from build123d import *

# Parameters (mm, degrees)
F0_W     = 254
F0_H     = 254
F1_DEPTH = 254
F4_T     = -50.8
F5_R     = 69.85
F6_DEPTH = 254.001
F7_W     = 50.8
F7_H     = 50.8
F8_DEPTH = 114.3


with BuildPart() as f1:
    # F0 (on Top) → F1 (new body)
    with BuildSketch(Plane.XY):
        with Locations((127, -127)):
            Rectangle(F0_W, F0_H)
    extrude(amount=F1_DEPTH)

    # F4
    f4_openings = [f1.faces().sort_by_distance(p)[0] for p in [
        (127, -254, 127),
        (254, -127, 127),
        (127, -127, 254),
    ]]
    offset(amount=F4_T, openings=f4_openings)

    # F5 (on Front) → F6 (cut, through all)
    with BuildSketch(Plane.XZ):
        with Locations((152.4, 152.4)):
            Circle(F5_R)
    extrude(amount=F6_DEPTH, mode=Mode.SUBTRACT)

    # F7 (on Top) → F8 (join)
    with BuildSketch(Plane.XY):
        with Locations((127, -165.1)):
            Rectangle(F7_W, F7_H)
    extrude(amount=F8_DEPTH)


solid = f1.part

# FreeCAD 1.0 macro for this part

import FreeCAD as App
import Part
import Sketcher
from FreeCAD import Vector
Q = App.Units.Quantity


def faces_at(feature, points):
    """Names of the faces that lie closest to the given points."""
    faces = feature.Shape.Faces
    near = lambda p: min(range(len(faces)), key=lambda i: faces[i].distToShape(Part.Vertex(*p))[0])
    return sorted({f"Face{near(p) + 1}" for p in points})

doc = App.newDocument("Part")
body = doc.addObject("PartDesign::Body", "Body")

# Sketch on XY plane
sketch1 = body.newObject("Sketcher::SketchObject", "Sketch")
sketch1.AttachmentSupport = (doc.getObject("XY_Plane"), [""])
sketch1.MapMode = "FlatFace"
sketch1.addGeometry([
    Part.LineSegment(Vector(0, 0, 0), Vector(0, -254, 0)),
    Part.LineSegment(Vector(0, -254, 0), Vector(254, -254, 0)),
    Part.LineSegment(Vector(254, -254, 0), Vector(254, 0, 0)),
    Part.LineSegment(Vector(254, 0, 0), Vector(0, 0, 0)),
], False)
sketch1.addConstraint([
    Sketcher.Constraint("Coincident", 0, 2, 1, 1),
    Sketcher.Constraint("Coincident", 1, 2, 2, 1),
    Sketcher.Constraint("Coincident", 2, 2, 3, 1),
    Sketcher.Constraint("Coincident", 3, 2, 0, 1),
    Sketcher.Constraint("Vertical", 0),
    Sketcher.Constraint("Horizontal", 1),
    Sketcher.Constraint("Vertical", 2),
    Sketcher.Constraint("Horizontal", 3),
    Sketcher.Constraint("Coincident", 3, 2, -1, 1),
    Sketcher.Constraint("Equal", 3, 0),
    Sketcher.Constraint("DistanceX", 1, 1, 1, 2, Q("10 in")),
])
pad1 = body.newObject("PartDesign::Pad", "Pad")
pad1.Profile = sketch1
pad1.Length = Q("10 in")
doc.recompute()

thickness = body.newObject("PartDesign::Thickness", "Thickness")
thickness.Base = (pad1, faces_at(pad1, [(127, -254, 127), (254, -127, 127), (127, -127, 254)]))
thickness.Value = Q("2 in")
thickness.Reversed = True
thickness.Join = "Arc"

# Sketch on XZ plane
sketch2 = body.newObject("Sketcher::SketchObject", "Sketch001")
sketch2.AttachmentSupport = (doc.getObject("XZ_Plane"), [""])
sketch2.MapMode = "FlatFace"
sketch2.addGeometry(Part.Circle(Vector(152.4, 152.4, 0), Vector(0, 0, 1), 69.85), False)
sketch2.addConstraint([
    Sketcher.Constraint("Diameter", 0, Q("5.5 in")),
    Sketcher.Constraint("DistanceX", -1, 1, 0, 3, Q("6 in")),
    Sketcher.Constraint("DistanceY", -1, 1, 0, 3, Q("6 in")),
])
pocket1 = body.newObject("PartDesign::Pocket", "Pocket")
pocket1.Profile = sketch2
pocket1.Type = "ThroughAll"
pocket1.Reversed = True

# Sketch on XY plane
sketch3 = body.newObject("Sketcher::SketchObject", "Sketch002")
sketch3.AttachmentSupport = (doc.getObject("XY_Plane"), [""])
sketch3.MapMode = "FlatFace"
sketch3.addGeometry([
    Part.LineSegment(Vector(101.6, -139.7, 0), Vector(101.6, -190.5, 0)),
    Part.LineSegment(Vector(101.6, -190.5, 0), Vector(152.4, -190.5, 0)),
    Part.LineSegment(Vector(152.4, -190.5, 0), Vector(152.4, -139.7, 0)),
    Part.LineSegment(Vector(152.4, -139.7, 0), Vector(101.6, -139.7, 0)),
], False)
sketch3.addConstraint([
    Sketcher.Constraint("Coincident", 0, 2, 1, 1),
    Sketcher.Constraint("Coincident", 1, 2, 2, 1),
    Sketcher.Constraint("Coincident", 2, 2, 3, 1),
    Sketcher.Constraint("Coincident", 3, 2, 0, 1),
    Sketcher.Constraint("Vertical", 0),
    Sketcher.Constraint("Horizontal", 1),
    Sketcher.Constraint("Vertical", 2),
    Sketcher.Constraint("Horizontal", 3),
    Sketcher.Constraint("Equal", 3, 0),
    Sketcher.Constraint("DistanceX", 1, 1, 1, 2, Q("2 in")),
    Sketcher.Constraint("DistanceX", -1, 1, 0, 2, Q("4 in")),
    Sketcher.Constraint("DistanceY", 0, 2, -1, 1, Q("7.5 in")),
])
pad2 = body.newObject("PartDesign::Pad", "Pad001")
pad2.Profile = sketch3
pad2.Length = Q("4.5 in")

doc.recompute()
